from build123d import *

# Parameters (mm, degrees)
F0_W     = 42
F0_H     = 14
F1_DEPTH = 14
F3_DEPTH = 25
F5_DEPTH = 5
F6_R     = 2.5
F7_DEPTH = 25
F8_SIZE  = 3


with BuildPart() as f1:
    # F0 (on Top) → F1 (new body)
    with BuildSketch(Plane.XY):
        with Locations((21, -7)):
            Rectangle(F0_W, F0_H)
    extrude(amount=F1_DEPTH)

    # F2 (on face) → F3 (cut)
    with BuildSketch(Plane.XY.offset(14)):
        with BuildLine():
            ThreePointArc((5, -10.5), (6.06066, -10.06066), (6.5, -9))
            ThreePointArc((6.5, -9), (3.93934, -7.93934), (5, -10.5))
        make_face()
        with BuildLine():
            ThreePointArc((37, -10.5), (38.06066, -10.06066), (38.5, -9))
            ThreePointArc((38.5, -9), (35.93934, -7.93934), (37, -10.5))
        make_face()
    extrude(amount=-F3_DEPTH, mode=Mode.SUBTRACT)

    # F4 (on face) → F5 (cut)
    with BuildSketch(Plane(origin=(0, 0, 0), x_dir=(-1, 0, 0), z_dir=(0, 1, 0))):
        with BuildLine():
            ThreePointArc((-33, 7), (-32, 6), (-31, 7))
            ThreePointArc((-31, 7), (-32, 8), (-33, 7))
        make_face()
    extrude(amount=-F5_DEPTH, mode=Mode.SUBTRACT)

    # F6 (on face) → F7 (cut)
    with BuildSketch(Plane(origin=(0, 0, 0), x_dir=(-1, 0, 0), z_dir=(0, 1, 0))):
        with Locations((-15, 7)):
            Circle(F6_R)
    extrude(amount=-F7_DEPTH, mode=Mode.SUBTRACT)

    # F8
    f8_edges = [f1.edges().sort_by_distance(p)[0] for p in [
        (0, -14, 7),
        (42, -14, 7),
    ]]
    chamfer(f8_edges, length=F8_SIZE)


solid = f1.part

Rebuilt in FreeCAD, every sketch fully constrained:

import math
import FreeCAD as App
import Part
import Sketcher
Q = App.Units.Quantity


def edges_at(feature, points):
    """Names of the edges that pass closest to the given points."""
    edges = feature.Shape.Edges
    near = lambda p: min(range(len(edges)), key=lambda i: edges[i].distToShape(Part.Vertex(*p))[0])
    return sorted({f"Edge{near(p) + 1}" for p in points})


def add_polygon(sketch, points):
    """Adds a closed chain of lines whose ends are joined by coincident constraints."""
    first, n = sketch.GeometryCount, len(points)
    for a, b in zip(points, points[1:] + points[:1]):
        sketch.addGeometry(Part.LineSegment(App.Vector(*a, 0), App.Vector(*b, 0)), False)
    for i in range(n):
        sketch.addConstraint(Sketcher.Constraint("Coincident", first + i, 2, first + (i + 1) % n, 1))

doc = App.newDocument("Part")
params = doc.addObject("Spreadsheet::Sheet", "Params")
for row, (alias, value) in enumerate([
    ("sketch1_width", "42 mm"),
    ("sketch1_height", "14 mm"),
    ("pad1_length", "14 mm"),
    ("sketch2_radius", "1.500001 mm"),
    ("pocket1_length", "25 mm"),
    ("sketch3_diameter", "2 mm"),
    ("pocket2_length", "5 mm"),
    ("sketch4_diameter", "5 mm"),
    ("pocket3_length", "25 mm"),
    ("chamfer_size", "3 mm"),
], start=1):
    params.set(f"A{row}", alias)
    params.set(f"B{row}", "=" + value)
    params.setAlias(f"B{row}", alias)

body = doc.addObject("PartDesign::Body", "Body")

# Sketch on XY plane
sketch1 = body.newObject("Sketcher::SketchObject", "Sketch")
sketch1.AttachmentSupport = (doc.getObject("XY_Plane"), [""])
sketch1.MapMode = "FlatFace"
add_polygon(sketch1, [(0, 0), (0, -14), (42, -14), (42, 0)])  # lines 0-3
sketch1.addConstraint([
    Sketcher.Constraint("Vertical", 0),
    Sketcher.Constraint("Horizontal", 1),
    Sketcher.Constraint("Vertical", 2),
    Sketcher.Constraint("Horizontal", 3),
    Sketcher.Constraint("Coincident", 3, 2, -1, 1),
    Sketcher.Constraint("DistanceX", 1, 1, 1, 2, Q("42 mm")),
    Sketcher.Constraint("DistanceY", 0, 2, 0, 1, Q("14 mm")),
])
sketch1.setExpression("Constraints[9]", "Params.sketch1_width")
sketch1.setExpression("Constraints[10]", "Params.sketch1_height")
pad1 = body.newObject("PartDesign::Pad", "Pad")
pad1.Profile = sketch1
pad1.setExpression("Length", "Params.pad1_length")

# Sketch on XY plane
sketch2 = body.newObject("Sketcher::SketchObject", "Sketch001")
sketch2.AttachmentSupport = (doc.getObject("XY_Plane"), [""])
sketch2.MapMode = "FlatFace"
sketch2.AttachmentOffset = App.Placement(App.Vector(0, 0, 14), App.Rotation())
sketch2.addGeometry([
    Part.ArcOfCircle(Part.Circle(App.Vector(5, -9, 0), App.Vector(0, 0, 1), 1.5), math.radians(-90), math.radians(0)),
    Part.ArcOfCircle(Part.Circle(App.Vector(5, -9, 0), App.Vector(0, 0, 1), 1.5), math.radians(0), math.radians(270)),
    Part.ArcOfCircle(Part.Circle(App.Vector(37, -9, 0), App.Vector(0, 0, 1), 1.5), math.radians(-90), math.radians(0)),
    Part.ArcOfCircle(Part.Circle(App.Vector(37, -9, 0), App.Vector(0, 0, 1), 1.5), math.radians(0), math.radians(270)),
], False)
sketch2.addConstraint([
    Sketcher.Constraint("Tangent", 0, 1, 1, 2),
    Sketcher.Constraint("Coincident", 1, 1, 0, 2),
    Sketcher.Constraint("Tangent", 2, 1, 3, 2),
    Sketcher.Constraint("Coincident", 3, 1, 2, 2),
    Sketcher.Constraint("Equal", 1, 2),
    Sketcher.Constraint("Horizontal", 1, 3, 2, 3),
    Sketcher.Constraint("Horizontal", 3, 3, 1, 1),
    Sketcher.Constraint("Horizontal", 1, 1, 3, 1),
    Sketcher.Constraint("Vertical", 1, 3, 0, 1),
    Sketcher.Constraint("Vertical", 3, 3, 2, 1),
    Sketcher.Constraint("Radius", 0, Q("1.500001 mm")),
    Sketcher.Constraint("DistanceX", -1, 1, 0, 3, Q("4.999999 mm")),
    Sketcher.Constraint("DistanceY", 0, 3, -1, 1, Q("8.999999 mm")),
    Sketcher.Constraint("DistanceX", -1, 1, 2, 3, Q("36.999999 mm")),
])
sketch2.setExpression("Constraints[10]", "Params.sketch2_radius")
pocket1 = body.newObject("PartDesign::Pocket", "Pocket")
pocket1.Profile = sketch2
pocket1.setExpression("Length", "Params.pocket1_length")

# Sketch on XZ plane
sketch3 = body.newObject("Sketcher::SketchObject", "Sketch002")
sketch3.AttachmentSupport = (doc.getObject("XZ_Plane"), [""])
sketch3.MapMode = "FlatFace"
sketch3.addGeometry(Part.Circle(App.Vector(32, 7, 0), App.Vector(0, 0, 1), 1), False)
sketch3.addConstraint([
    Sketcher.Constraint("Diameter", 0, Q("2 mm")),
    Sketcher.Constraint("DistanceX", -1, 1, 0, 3, Q("32 mm")),
    Sketcher.Constraint("DistanceY", -1, 1, 0, 3, Q("7 mm")),
])
sketch3.setExpression("Constraints[0]", "Params.sketch3_diameter")
pocket2 = body.newObject("PartDesign::Pocket", "Pocket001")
pocket2.Profile = sketch3
pocket2.setExpression("Length", "Params.pocket2_length")
pocket2.Reversed = True

# Sketch on XZ plane
sketch4 = body.newObject("Sketcher::SketchObject", "Sketch003")
sketch4.AttachmentSupport = (doc.getObject("XZ_Plane"), [""])
sketch4.MapMode = "FlatFace"
sketch4.addGeometry(Part.Circle(App.Vector(15, 7, 0), App.Vector(0, 0, 1), 2.5), False)
sketch4.addConstraint([
    Sketcher.Constraint("Diameter", 0, Q("5 mm")),
    Sketcher.Constraint("DistanceX", -1, 1, 0, 3, Q("15 mm")),
    Sketcher.Constraint("DistanceY", -1, 1, 0, 3, Q("7 mm")),
])
sketch4.setExpression("Constraints[0]", "Params.sketch4_diameter")
pocket3 = body.newObject("PartDesign::Pocket", "Pocket002")
pocket3.Profile = sketch4
pocket3.setExpression("Length", "Params.pocket3_length")
pocket3.Reversed = True
doc.recompute()

chamfer = body.newObject("PartDesign::Chamfer", "Chamfer")
chamfer.Base = (pocket3, edges_at(pocket3, [(0, -14, 7), (42, -14, 7)]))
chamfer.setExpression("Size", "Params.chamfer_size")

doc.recompute()
